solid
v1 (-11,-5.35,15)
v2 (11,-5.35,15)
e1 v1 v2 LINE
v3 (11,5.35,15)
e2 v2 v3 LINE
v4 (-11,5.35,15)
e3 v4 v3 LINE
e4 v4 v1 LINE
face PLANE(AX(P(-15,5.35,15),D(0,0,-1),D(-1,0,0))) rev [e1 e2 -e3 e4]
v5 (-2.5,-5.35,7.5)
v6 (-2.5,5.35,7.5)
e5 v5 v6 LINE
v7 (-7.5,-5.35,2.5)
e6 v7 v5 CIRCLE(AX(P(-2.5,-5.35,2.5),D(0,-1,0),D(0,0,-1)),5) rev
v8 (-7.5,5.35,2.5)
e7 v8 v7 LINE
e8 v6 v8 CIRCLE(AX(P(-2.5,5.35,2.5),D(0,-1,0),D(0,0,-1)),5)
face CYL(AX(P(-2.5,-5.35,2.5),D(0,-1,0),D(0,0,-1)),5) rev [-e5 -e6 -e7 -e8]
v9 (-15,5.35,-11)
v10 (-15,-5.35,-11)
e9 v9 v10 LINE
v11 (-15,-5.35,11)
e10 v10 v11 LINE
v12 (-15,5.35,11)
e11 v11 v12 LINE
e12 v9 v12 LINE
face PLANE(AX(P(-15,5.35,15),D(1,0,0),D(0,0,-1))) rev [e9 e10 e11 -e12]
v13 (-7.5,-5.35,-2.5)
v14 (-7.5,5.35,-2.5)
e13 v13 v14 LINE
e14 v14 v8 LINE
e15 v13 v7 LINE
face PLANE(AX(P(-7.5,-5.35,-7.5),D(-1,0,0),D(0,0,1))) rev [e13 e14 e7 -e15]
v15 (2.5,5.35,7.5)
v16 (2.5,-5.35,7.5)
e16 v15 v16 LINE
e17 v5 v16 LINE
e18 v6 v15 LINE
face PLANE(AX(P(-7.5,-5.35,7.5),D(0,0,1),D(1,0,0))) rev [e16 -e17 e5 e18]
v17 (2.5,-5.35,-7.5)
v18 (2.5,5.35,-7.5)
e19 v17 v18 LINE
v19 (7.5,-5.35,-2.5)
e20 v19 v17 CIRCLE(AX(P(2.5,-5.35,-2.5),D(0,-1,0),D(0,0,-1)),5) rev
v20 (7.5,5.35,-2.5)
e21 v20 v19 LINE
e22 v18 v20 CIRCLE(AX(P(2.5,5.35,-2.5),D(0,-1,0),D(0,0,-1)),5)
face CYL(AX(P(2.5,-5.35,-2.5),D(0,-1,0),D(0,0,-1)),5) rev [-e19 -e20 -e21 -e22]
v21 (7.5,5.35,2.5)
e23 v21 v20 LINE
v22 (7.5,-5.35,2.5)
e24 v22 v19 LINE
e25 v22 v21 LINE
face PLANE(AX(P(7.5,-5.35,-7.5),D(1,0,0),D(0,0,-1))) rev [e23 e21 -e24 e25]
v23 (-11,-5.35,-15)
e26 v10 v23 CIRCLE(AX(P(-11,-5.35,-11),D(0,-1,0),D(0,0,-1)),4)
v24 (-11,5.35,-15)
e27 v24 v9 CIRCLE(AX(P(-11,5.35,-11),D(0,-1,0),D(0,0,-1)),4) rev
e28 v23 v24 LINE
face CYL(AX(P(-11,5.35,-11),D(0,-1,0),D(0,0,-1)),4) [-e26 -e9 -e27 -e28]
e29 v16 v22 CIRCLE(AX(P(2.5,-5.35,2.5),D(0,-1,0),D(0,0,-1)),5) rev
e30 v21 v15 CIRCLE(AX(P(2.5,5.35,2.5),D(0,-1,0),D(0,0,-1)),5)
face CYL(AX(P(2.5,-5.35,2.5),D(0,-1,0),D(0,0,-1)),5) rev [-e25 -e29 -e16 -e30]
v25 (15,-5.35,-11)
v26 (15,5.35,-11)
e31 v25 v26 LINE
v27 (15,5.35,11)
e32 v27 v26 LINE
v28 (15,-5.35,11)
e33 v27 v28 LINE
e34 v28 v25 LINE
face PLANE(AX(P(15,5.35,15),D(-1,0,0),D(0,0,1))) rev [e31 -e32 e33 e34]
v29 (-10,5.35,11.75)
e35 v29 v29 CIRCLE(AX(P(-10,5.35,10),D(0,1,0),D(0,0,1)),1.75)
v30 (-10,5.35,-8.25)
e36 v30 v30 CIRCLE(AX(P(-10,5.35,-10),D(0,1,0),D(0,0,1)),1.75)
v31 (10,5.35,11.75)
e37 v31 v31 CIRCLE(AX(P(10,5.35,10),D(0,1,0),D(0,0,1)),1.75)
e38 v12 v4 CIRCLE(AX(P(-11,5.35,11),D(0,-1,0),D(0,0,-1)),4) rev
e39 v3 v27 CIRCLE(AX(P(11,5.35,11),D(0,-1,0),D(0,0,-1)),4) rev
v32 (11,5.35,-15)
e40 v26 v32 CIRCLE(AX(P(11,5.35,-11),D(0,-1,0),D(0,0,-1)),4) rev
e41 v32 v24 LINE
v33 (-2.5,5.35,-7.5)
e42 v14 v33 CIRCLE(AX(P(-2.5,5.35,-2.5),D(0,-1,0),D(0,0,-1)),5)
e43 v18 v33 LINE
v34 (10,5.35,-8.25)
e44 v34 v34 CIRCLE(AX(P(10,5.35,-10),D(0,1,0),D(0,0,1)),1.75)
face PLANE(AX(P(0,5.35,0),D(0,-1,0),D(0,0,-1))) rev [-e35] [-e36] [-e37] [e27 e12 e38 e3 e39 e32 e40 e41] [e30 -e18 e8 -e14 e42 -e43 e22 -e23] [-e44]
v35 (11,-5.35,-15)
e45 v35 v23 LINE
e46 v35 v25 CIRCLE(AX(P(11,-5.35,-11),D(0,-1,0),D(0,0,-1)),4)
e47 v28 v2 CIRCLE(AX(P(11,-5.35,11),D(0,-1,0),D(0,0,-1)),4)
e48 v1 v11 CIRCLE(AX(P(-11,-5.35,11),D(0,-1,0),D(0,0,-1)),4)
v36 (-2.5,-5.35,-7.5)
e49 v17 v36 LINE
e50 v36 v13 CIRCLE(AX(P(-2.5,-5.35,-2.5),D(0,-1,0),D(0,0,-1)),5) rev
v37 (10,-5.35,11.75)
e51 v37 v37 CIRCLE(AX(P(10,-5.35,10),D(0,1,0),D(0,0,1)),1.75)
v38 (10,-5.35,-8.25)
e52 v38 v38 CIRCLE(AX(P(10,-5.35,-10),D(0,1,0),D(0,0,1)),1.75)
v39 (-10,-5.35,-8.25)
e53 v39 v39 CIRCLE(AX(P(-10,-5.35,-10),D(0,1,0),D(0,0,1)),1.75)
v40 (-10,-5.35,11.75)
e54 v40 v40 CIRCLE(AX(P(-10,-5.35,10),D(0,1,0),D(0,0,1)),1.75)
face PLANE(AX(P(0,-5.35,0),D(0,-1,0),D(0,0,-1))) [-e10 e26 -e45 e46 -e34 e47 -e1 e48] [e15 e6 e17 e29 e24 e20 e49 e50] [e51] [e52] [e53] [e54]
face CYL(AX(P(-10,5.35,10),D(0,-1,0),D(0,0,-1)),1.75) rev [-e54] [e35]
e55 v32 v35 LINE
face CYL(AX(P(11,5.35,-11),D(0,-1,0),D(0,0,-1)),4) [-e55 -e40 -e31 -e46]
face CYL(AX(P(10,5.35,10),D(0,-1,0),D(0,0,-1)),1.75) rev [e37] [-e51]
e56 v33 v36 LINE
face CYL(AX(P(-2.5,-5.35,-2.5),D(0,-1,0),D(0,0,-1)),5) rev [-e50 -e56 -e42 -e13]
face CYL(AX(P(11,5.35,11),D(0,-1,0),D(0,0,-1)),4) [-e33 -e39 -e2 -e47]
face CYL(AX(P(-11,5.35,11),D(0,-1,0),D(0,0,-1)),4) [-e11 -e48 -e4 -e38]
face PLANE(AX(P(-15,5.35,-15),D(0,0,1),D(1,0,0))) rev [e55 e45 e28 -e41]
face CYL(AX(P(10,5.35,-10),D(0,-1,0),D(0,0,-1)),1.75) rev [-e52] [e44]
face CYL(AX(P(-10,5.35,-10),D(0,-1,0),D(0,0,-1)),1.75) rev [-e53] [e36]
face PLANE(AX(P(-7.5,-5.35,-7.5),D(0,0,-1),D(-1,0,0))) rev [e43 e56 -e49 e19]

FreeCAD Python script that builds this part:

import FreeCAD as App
import Part
import Sketcher

V = App.Vector
Q = App.Units.Quantity


def edges_at(feature, points):
    """Names of the edges that pass closest to the given points."""
    edges = feature.Shape.Edges
    near = lambda p: min(range(len(edges)), key=lambda i: edges[i].distToShape(Part.Vertex(*p))[0])
    return sorted({f"Edge{near(p) + 1}" for p in points})

doc = App.newDocument("Part")
body = doc.addObject("PartDesign::Body", "Body")

# Sketch on XZ plane
sketch1 = body.newObject("Sketcher::SketchObject", "Sketch")
sketch1.AttachmentSupport = (doc.getObject("XZ_Plane"), [""])
sketch1.MapMode = "FlatFace"
sketch1.addGeometry(Part.LineSegment(V(-15, -15, 0), V(-15, 15, 0)), False)
sketch1.addGeometry(Part.LineSegment(V(-15, 15, 0), V(15, 15, 0)), False)
sketch1.addGeometry(Part.LineSegment(V(15, 15, 0), V(15, -15, 0)), False)
sketch1.addGeometry(Part.LineSegment(V(15, -15, 0), V(-15, -15, 0)), False)
sketch1.addConstraint(Sketcher.Constraint("Coincident", 0, 2, 1, 1))
sketch1.addConstraint(Sketcher.Constraint("Coincident", 1, 2, 2, 1))
sketch1.addConstraint(Sketcher.Constraint("Coincident", 2, 2, 3, 1))
sketch1.addConstraint(Sketcher.Constraint("Coincident", 3, 2, 0, 1))
sketch1.addConstraint(Sketcher.Constraint("Vertical", 0))
sketch1.addConstraint(Sketcher.Constraint("Horizontal", 1))
sketch1.addConstraint(Sketcher.Constraint("Vertical", 2))
sketch1.addConstraint(Sketcher.Constraint("Horizontal", 3))
sketch1.addConstraint(Sketcher.Constraint("Symmetric", 0, 2, 2, 2, -1, 1))
sketch1.addConstraint(Sketcher.Constraint("Equal", 3, 0))
sketch1.addConstraint(Sketcher.Constraint("DistanceX", 1, 1, 1, 2, Q("30 mm")))
pad1 = body.newObject("PartDesign::Pad", "Pad")
pad1.Profile = sketch1
pad1.Length = 10.7
pad1.Midplane = True

# Sketch on XZ plane
sketch2 = body.newObject("Sketcher::SketchObject", "Sketch001")
sketch2.AttachmentSupport = (doc.getObject("XZ_Plane"), [""])
sketch2.MapMode = "FlatFace"
sketch2.AttachmentOffset = App.Placement(V(0, 0, 5.35), App.Rotation())
sketch2.addGeometry(Part.Circle(V(-10, -10, 0), V(0, 0, 1), 1.8), False)
sketch2.addGeometry(Part.Circle(V(10, -10, 0), V(0, 0, 1), 1.8), False)
sketch2.addGeometry(Part.Circle(V(10, 10, 0), V(0, 0, 1), 1.8), False)
sketch2.addGeometry(Part.Circle(V(-10, 10, 0), V(0, 0, 1), 1.8), False)
sketch2.addConstraint(Sketcher.Constraint("Equal", 0, 1))
sketch2.addConstraint(Sketcher.Constraint("Equal", 1, 2))
sketch2.addConstraint(Sketcher.Constraint("Equal", 2, 3))
sketch2.addConstraint(Sketcher.Constraint("Symmetric", 0, 3, 2, 3, -1, 1))
sketch2.addConstraint(Sketcher.Constraint("Symmetric", 1, 3, 3, 3, -1, 1))
sketch2.addConstraint(Sketcher.Constraint("Symmetric", 0, 3, 1, 3, -2))
sketch2.addConstraint(Sketcher.Constraint("Diameter", 0, Q("3.5 mm")))
sketch2.addConstraint(Sketcher.Constraint("DistanceX", 0, 3, -1, 1, Q("10 mm")))
sketch2.addConstraint(Sketcher.Constraint("DistanceY", 0, 3, -1, 1, Q("10 mm")))
pocket1 = body.newObject("PartDesign::Pocket", "Pocket")
pocket1.Profile = sketch2
pocket1.Type = "ThroughAll"

# Sketch on XZ plane
sketch3 = body.newObject("Sketcher::SketchObject", "Sketch002")
sketch3.AttachmentSupport = (doc.getObject("XZ_Plane"), [""])
sketch3.MapMode = "FlatFace"
sketch3.AttachmentOffset = App.Placement(V(0, 0, -5.35), App.Rotation())
sketch3.addGeometry(Part.LineSegment(V(-8, -8, 0), V(-8, 8, 0)), False)
sketch3.addGeometry(Part.LineSegment(V(-8, 8, 0), V(8, 8, 0)), False)
sketch3.addGeometry(Part.LineSegment(V(8, 8, 0), V(8, -8, 0)), False)
sketch3.addGeometry(Part.LineSegment(V(8, -8, 0), V(-8, -8, 0)), False)
sketch3.addConstraint(Sketcher.Constraint("Coincident", 0, 2, 1, 1))
sketch3.addConstraint(Sketcher.Constraint("Coincident", 1, 2, 2, 1))
sketch3.addConstraint(Sketcher.Constraint("Coincident", 2, 2, 3, 1))
sketch3.addConstraint(Sketcher.Constraint("Coincident", 3, 2, 0, 1))
sketch3.addConstraint(Sketcher.Constraint("Vertical", 0))
sketch3.addConstraint(Sketcher.Constraint("Horizontal", 1))
sketch3.addConstraint(Sketcher.Constraint("Vertical", 2))
sketch3.addConstraint(Sketcher.Constraint("Horizontal", 3))
sketch3.addConstraint(Sketcher.Constraint("Symmetric", 0, 2, 2, 2, -1, 1))
sketch3.addConstraint(Sketcher.Constraint("Equal", 3, 0))
sketch3.addConstraint(Sketcher.Constraint("DistanceX", 1, 1, 1, 2, Q("15 mm")))
pocket2 = body.newObject("PartDesign::Pocket", "Pocket001")
pocket2.Profile = sketch3
pocket2.Type = "ThroughAll"
pocket2.Reversed = True
doc.recompute()

fillet = body.newObject("PartDesign::Fillet", "Fillet")
fillet.Base = (pocket2, edges_at(pocket2, [
    (-7.5, 0, 7.5),
    (-7.5, 0, -7.5),
    (7.5, 0, -7.5),
    (7.5, 0, 7.5),
]))
fillet.Radius = 5
doc.recompute()

fillet2 = body.newObject("PartDesign::Fillet", "Fillet001")
fillet2.Base = (fillet, edges_at(fillet, [
    (15, 0, 15),
    (-15, 0, 15),
    (-15, 0, -15),
    (15, 0, -15),
]))
fillet2.Radius = 4

doc.recompute()
